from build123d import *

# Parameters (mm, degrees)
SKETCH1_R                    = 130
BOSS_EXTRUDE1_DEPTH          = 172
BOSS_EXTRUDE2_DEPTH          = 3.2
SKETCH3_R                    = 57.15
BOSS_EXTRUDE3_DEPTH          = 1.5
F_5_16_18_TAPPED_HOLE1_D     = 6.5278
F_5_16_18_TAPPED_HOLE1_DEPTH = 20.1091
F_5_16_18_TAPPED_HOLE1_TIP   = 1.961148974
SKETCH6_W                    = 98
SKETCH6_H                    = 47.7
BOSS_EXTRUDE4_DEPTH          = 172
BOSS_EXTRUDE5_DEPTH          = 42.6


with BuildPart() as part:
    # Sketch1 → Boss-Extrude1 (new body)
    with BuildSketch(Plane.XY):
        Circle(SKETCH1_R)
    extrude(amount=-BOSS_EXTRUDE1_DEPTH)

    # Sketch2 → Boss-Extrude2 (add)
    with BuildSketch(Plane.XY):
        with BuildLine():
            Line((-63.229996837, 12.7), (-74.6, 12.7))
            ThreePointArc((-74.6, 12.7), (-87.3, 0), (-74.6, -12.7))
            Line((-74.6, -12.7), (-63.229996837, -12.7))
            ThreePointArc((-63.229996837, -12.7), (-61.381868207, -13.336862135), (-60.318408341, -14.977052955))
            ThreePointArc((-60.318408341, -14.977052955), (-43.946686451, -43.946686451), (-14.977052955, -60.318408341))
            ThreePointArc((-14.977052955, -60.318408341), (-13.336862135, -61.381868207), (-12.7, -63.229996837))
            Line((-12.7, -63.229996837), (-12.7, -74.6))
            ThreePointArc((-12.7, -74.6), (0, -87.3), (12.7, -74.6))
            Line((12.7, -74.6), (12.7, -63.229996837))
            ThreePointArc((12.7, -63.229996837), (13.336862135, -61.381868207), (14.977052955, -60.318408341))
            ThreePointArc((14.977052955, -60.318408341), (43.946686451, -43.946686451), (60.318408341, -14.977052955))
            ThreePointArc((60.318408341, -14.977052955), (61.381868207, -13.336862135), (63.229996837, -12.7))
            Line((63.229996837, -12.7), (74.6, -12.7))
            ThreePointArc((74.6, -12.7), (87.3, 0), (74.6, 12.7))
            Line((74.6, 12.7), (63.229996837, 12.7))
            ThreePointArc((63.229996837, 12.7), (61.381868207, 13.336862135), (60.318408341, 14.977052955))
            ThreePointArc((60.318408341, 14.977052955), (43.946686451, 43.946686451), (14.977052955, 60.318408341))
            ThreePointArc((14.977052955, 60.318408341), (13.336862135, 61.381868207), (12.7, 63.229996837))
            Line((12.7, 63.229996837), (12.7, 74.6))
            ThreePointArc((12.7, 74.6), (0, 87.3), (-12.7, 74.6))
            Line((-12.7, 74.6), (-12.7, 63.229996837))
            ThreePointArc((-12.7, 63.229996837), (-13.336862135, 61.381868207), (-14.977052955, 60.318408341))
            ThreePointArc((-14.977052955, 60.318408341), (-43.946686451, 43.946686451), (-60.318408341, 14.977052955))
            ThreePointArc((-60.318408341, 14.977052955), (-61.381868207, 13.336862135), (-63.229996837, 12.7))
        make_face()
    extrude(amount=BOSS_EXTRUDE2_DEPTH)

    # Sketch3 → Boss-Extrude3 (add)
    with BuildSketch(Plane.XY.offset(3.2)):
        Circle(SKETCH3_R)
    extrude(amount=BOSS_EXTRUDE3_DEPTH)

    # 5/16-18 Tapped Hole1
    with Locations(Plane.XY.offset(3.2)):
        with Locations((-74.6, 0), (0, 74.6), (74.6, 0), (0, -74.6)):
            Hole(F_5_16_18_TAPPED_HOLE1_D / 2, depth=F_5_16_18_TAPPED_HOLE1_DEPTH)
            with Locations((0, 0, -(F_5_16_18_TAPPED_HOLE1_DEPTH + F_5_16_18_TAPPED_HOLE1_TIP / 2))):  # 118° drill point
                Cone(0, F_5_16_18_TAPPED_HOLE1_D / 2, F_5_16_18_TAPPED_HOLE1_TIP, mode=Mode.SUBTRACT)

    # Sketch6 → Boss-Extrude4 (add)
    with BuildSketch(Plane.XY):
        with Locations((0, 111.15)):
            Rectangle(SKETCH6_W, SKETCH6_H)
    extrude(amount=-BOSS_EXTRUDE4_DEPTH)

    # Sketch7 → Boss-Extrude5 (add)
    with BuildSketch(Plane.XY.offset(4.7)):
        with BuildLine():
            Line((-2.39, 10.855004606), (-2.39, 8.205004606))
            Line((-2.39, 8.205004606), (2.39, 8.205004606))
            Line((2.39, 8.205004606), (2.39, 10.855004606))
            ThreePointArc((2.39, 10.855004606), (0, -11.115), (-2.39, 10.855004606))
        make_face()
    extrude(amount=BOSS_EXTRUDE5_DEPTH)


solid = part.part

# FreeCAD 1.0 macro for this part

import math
import FreeCAD as App
import Part
import Sketcher

V = App.Vector
Q = App.Units.Quantity


def add_polygon(sketch, points):
    """Adds a closed chain of lines whose ends are joined by coincident constraints."""
    first, n = sketch.GeometryCount, len(points)
    for a, b in zip(points, points[1:] + points[:1]):
        sketch.addGeometry(Part.LineSegment(App.Vector(*a, 0), App.Vector(*b, 0)), False)
    for i in range(n):
        sketch.addConstraint(Sketcher.Constraint("Coincident", first + i, 2, first + (i + 1) % n, 1))

doc = App.newDocument("Part")
body = doc.addObject("PartDesign::Body", "Body")

sketch1 = body.newObject("Sketcher::SketchObject", "Sketch")
sketch1.AttachmentSupport = (doc.getObject("XY_Plane"), [""])
sketch1.MapMode = "FlatFace"
sketch1.addGeometry(Part.Circle(V(0, 0, 0), V(0, 0, 1), 130), False)
sketch1.addConstraint([
    Sketcher.Constraint("Coincident", 0, 3, -1, 1),
    Sketcher.Constraint("Diameter", 0, Q("260 mm")),
])
pad1 = body.newObject("PartDesign::Pad", "Pad")
pad1.Profile = sketch1
pad1.Length = 172
pad1.Reversed = True

sketch2 = body.newObject("Sketcher::SketchObject", "Sketch001")
sketch2.AttachmentSupport = (doc.getObject("XY_Plane"), [""])
sketch2.MapMode = "FlatFace"
sketch2.addGeometry([
    Part.LineSegment(V(-63.2, 12.7, 0), V(-74.6, 12.7, 0)),
    Part.ArcOfCircle(Part.Circle(V(-74.6, 0, 0), V(0, 0, 1), 12.7), math.radians(90), math.radians(270)),
    Part.LineSegment(V(-74.6, -12.7, 0), V(-63.2, -12.7, 0)),
    Part.ArcOfCircle(Part.Circle(V(-63.2, -15.7, 0), V(0, 0, 1), 3), math.radians(14), math.radians(90)),
    Part.ArcOfCircle(Part.Circle(V(0, 0, 0), V(0, 0, 1), 62.1), math.radians(-166), math.radians(-104)),
    Part.ArcOfCircle(Part.Circle(V(-15.7, -63.2, 0), V(0, 0, 1), 3), math.radians(0), math.radians(76)),
    Part.LineSegment(V(-12.7, -63.2, 0), V(-12.7, -74.6, 0)),
    Part.ArcOfCircle(Part.Circle(V(0, -74.6, 0), V(0, 0, 1), 12.7), math.radians(180), math.radians(360)),
    Part.LineSegment(V(12.7, -74.6, 0), V(12.7, -63.2, 0)),
    Part.ArcOfCircle(Part.Circle(V(15.7, -63.2, 0), V(0, 0, 1), 3), math.radians(104), math.radians(180)),
    Part.ArcOfCircle(Part.Circle(V(0, 0, 0), V(0, 0, 1), 62.1), math.radians(-76), math.radians(-14)),
    Part.ArcOfCircle(Part.Circle(V(63.2, -15.7, 0), V(0, 0, 1), 3), math.radians(90), math.radians(166)),
    Part.LineSegment(V(63.2, -12.7, 0), V(74.6, -12.7, 0)),
    Part.ArcOfCircle(Part.Circle(V(74.6, 0, 0), V(0, 0, 1), 12.7), math.radians(-90), math.radians(90)),
    Part.LineSegment(V(74.6, 12.7, 0), V(63.2, 12.7, 0)),
    Part.ArcOfCircle(Part.Circle(V(63.2, 15.7, 0), V(0, 0, 1), 3), math.radians(-166), math.radians(-90)),
    Part.ArcOfCircle(Part.Circle(V(0, 0, 0), V(0, 0, 1), 62.1), math.radians(14), math.radians(76)),
    Part.ArcOfCircle(Part.Circle(V(15.7, 63.2, 0), V(0, 0, 1), 3), math.radians(180), math.radians(256)),
    Part.LineSegment(V(12.7, 63.2, 0), V(12.7, 74.6, 0)),
    Part.ArcOfCircle(Part.Circle(V(0, 74.6, 0), V(0, 0, 1), 12.7), math.radians(0), math.radians(180)),
    Part.LineSegment(V(-12.7, 74.6, 0), V(-12.7, 63.2, 0)),
    Part.ArcOfCircle(Part.Circle(V(-15.7, 63.2, 0), V(0, 0, 1), 3), math.radians(-76), math.radians(0)),
    Part.ArcOfCircle(Part.Circle(V(0, 0, 0), V(0, 0, 1), 62.1), math.radians(104), math.radians(166)),
    Part.ArcOfCircle(Part.Circle(V(-63.2, 15.7, 0), V(0, 0, 1), 3), math.radians(-90), math.radians(-14)),
], False)
sketch2.addConstraint([
    Sketcher.Constraint("Tangent", 0, 2, 1, 1),
    Sketcher.Constraint("Tangent", 1, 2, 2, 1),
    Sketcher.Constraint("Tangent", 2, 2, 3, 2),
    Sketcher.Constraint("Tangent", 3, 1, 4, 1),
    Sketcher.Constraint("Tangent", 4, 2, 5, 2),
    Sketcher.Constraint("Tangent", 5, 1, 6, 1),
    Sketcher.Constraint("Tangent", 6, 2, 7, 1),
    Sketcher.Constraint("Tangent", 7, 2, 8, 1),
    Sketcher.Constraint("Tangent", 8, 2, 9, 2),
    Sketcher.Constraint("Tangent", 9, 1, 10, 1),
    Sketcher.Constraint("Tangent", 10, 2, 11, 2),
    Sketcher.Constraint("Tangent", 11, 1, 12, 1),
    Sketcher.Constraint("Tangent", 12, 2, 13, 1),
    Sketcher.Constraint("Tangent", 13, 2, 14, 1),
    Sketcher.Constraint("Tangent", 14, 2, 15, 2),
    Sketcher.Constraint("Tangent", 15, 1, 16, 1),
    Sketcher.Constraint("Tangent", 16, 2, 17, 2),
    Sketcher.Constraint("Tangent", 17, 1, 18, 1),
    Sketcher.Constraint("Tangent", 18, 2, 19, 1),
    Sketcher.Constraint("Tangent", 19, 2, 20, 1),
    Sketcher.Constraint("Tangent", 20, 2, 21, 2),
    Sketcher.Constraint("Tangent", 21, 1, 22, 1),
    Sketcher.Constraint("Tangent", 22, 2, 23, 2),
    Sketcher.Constraint("Tangent", 23, 1, 0, 1),
    Sketcher.Constraint("Horizontal", 0),
    Sketcher.Constraint("Horizontal", 2),
    Sketcher.Constraint("Vertical", 6),
    Sketcher.Constraint("Vertical", 8),
    Sketcher.Constraint("Horizontal", 12),
    Sketcher.Constraint("Horizontal", 14),
    Sketcher.Constraint("Vertical", 18),
    Sketcher.Constraint("Vertical", 20),
    Sketcher.Constraint("Coincident", 4, 3, -1, 1),
    Sketcher.Constraint("Coincident", 10, 3, -1, 1),
    Sketcher.Constraint("Coincident", 16, 3, -1, 1),
    Sketcher.Constraint("Coincident", 22, 3, -1, 1),
    Sketcher.Constraint("Equal", 3, 5),
    Sketcher.Constraint("Equal", 1, 7),
    Sketcher.Constraint("Equal", 5, 9),
    Sketcher.Constraint("Equal", 4, 10),
    Sketcher.Constraint("Equal", 9, 11),
    Sketcher.Constraint("Equal", 7, 13),
    Sketcher.Constraint("Equal", 11, 15),
    Sketcher.Constraint("Equal", 10, 16),
    Sketcher.Constraint("Equal", 15, 17),
    Sketcher.Constraint("Equal", 13, 19),
    Sketcher.Constraint("Equal", 17, 21),
    Sketcher.Constraint("Equal", 16, 22),
    Sketcher.Constraint("Equal", 21, 23),
    Sketcher.Constraint("Symmetric", 1, 3, 13, 3, -1, 1),
    Sketcher.Constraint("Symmetric", 7, 3, 19, 3, -1, 1),
    Sketcher.Constraint("PointOnObject", 1, 3, -1),
    Sketcher.Constraint("PointOnObject", 7, 3, -2),
    Sketcher.Constraint("Equal", 14, 6),
    Sketcher.Constraint("Radius", 3, Q("3 mm")),
    Sketcher.Constraint("Radius", 1, Q("12.7 mm")),
    Sketcher.Constraint("Radius", 4, Q("62.15 mm")),
    Sketcher.Constraint("DistanceX", 1, 3, -1, 1, Q("74.6 mm")),
])
pad2 = body.newObject("PartDesign::Pad", "Pad001")
pad2.Profile = sketch2
pad2.Length = 3.2

sketch3 = body.newObject("Sketcher::SketchObject", "Sketch002")
sketch3.AttachmentSupport = (doc.getObject("XY_Plane"), [""])
sketch3.MapMode = "FlatFace"
sketch3.AttachmentOffset = App.Placement(V(0, 0, 3.2), App.Rotation())
sketch3.addGeometry(Part.Circle(V(0, 0, 0), V(0, 0, 1), 57), False)
sketch3.addConstraint([
    Sketcher.Constraint("Coincident", 0, 3, -1, 1),
    Sketcher.Constraint("Diameter", 0, Q("114.3 mm")),
])
pad3 = body.newObject("PartDesign::Pad", "Pad002")
pad3.Profile = sketch3
pad3.Length = 1.5

sketch4 = body.newObject("Sketcher::SketchObject", "Sketch003")
sketch4.AttachmentSupport = (doc.getObject("XY_Plane"), [""])
sketch4.MapMode = "FlatFace"
sketch4.AttachmentOffset = App.Placement(V(0, 0, 3.2), App.Rotation())
sketch4.addGeometry([
    Part.Circle(V(-74.6, 0, 0), V(0, 0, 1), 3.3),
    Part.Circle(V(0, 74.6, 0), V(0, 0, 1), 3.3),
    Part.Circle(V(74.6, 0, 0), V(0, 0, 1), 3.3),
    Part.Circle(V(0, -74.6, 0), V(0, 0, 1), 3.3),
], False)
sketch4.addConstraint([
    Sketcher.Constraint("Equal", 0, 1),
    Sketcher.Constraint("Equal", 1, 2),
    Sketcher.Constraint("Equal", 2, 3),
    Sketcher.Constraint("Symmetric", 0, 3, 2, 3, -1, 1),
    Sketcher.Constraint("Symmetric", 1, 3, 3, 3, -1, 1),
    Sketcher.Constraint("PointOnObject", 0, 3, -1),
    Sketcher.Constraint("PointOnObject", 1, 3, -2),
    Sketcher.Constraint("Diameter", 0, Q("6.5278 mm")),
    Sketcher.Constraint("DistanceX", 0, 3, -1, 1, Q("74.6 mm")),
    Sketcher.Constraint("DistanceY", -1, 1, 1, 3, Q("74.6 mm")),
])
doc.recompute()
hole = body.newObject("PartDesign::Hole", "Hole")
hole.Profile = sketch4
hole.ThreadType = "None"
hole.Diameter = 6.5278
hole.DepthType = "Dimension"
hole.Depth = 20.1091
hole.DrillPoint = "Angled"
hole.DrillPointAngle = 118

sketch5 = body.newObject("Sketcher::SketchObject", "Sketch004")
sketch5.AttachmentSupport = (doc.getObject("XY_Plane"), [""])
sketch5.MapMode = "FlatFace"
add_polygon(sketch5, [(-49, 135), (-49, 87), (49, 87), (49, 135)])
sketch5.addConstraint([
    Sketcher.Constraint("Vertical", 0),
    Sketcher.Constraint("Horizontal", 1),
    Sketcher.Constraint("Vertical", 2),
    Sketcher.Constraint("Horizontal", 3),
    Sketcher.Constraint("DistanceX", 1, 1, 1, 2, Q("98 mm")),
    Sketcher.Constraint("DistanceY", 0, 2, 0, 1, Q("47.7 mm")),
    Sketcher.Constraint("DistanceX", 0, 2, -1, 1, Q("49 mm")),
    Sketcher.Constraint("DistanceY", -1, 1, 2, 2, Q("135 mm")),
])
pad4 = body.newObject("PartDesign::Pad", "Pad003")
pad4.Profile = sketch5
pad4.Length = 172
pad4.Reversed = True

sketch6 = body.newObject("Sketcher::SketchObject", "Sketch005")
sketch6.AttachmentSupport = (doc.getObject("XY_Plane"), [""])
sketch6.MapMode = "FlatFace"
sketch6.AttachmentOffset = App.Placement(V(0, 0, 4.7), App.Rotation())
sketch6.addGeometry([
    Part.LineSegment(V(-2.4, 8.2, 0), V(-2.4, 10.9, 0)),
    Part.ArcOfCircle(Part.Circle(V(0, 0, 0), V(0, 0, 1), 11.1), math.radians(102), math.radians(438)),
    Part.LineSegment(V(2.4, 10.9, 0), V(2.4, 8.2, 0)),
    Part.LineSegment(V(2.4, 8.2, 0), V(-2.4, 8.2, 0)),
], False)
sketch6.addConstraint([
    Sketcher.Constraint("Coincident", 0, 2, 1, 1),
    Sketcher.Constraint("Coincident", 1, 2, 2, 1),
    Sketcher.Constraint("Coincident", 2, 2, 3, 1),
    Sketcher.Constraint("Coincident", 3, 2, 0, 1),
    Sketcher.Constraint("Vertical", 0),
    Sketcher.Constraint("Vertical", 2),
    Sketcher.Constraint("Horizontal", 3),
    Sketcher.Constraint("Coincident", 1, 3, -1, 1),
    Sketcher.Constraint("Horizontal", 0, 2, 1, 2),
    Sketcher.Constraint("Radius", 1, Q("11.115 mm")),
    Sketcher.Constraint("DistanceX", 3, 2, 3, 1, Q("4.78 mm")),
    Sketcher.Constraint("DistanceY", 0, 1, 0, 2, Q("2.65 mm")),
])
pad5 = body.newObject("PartDesign::Pad", "Pad004")
pad5.Profile = sketch6
pad5.Length = 42.6

doc.recompute()
